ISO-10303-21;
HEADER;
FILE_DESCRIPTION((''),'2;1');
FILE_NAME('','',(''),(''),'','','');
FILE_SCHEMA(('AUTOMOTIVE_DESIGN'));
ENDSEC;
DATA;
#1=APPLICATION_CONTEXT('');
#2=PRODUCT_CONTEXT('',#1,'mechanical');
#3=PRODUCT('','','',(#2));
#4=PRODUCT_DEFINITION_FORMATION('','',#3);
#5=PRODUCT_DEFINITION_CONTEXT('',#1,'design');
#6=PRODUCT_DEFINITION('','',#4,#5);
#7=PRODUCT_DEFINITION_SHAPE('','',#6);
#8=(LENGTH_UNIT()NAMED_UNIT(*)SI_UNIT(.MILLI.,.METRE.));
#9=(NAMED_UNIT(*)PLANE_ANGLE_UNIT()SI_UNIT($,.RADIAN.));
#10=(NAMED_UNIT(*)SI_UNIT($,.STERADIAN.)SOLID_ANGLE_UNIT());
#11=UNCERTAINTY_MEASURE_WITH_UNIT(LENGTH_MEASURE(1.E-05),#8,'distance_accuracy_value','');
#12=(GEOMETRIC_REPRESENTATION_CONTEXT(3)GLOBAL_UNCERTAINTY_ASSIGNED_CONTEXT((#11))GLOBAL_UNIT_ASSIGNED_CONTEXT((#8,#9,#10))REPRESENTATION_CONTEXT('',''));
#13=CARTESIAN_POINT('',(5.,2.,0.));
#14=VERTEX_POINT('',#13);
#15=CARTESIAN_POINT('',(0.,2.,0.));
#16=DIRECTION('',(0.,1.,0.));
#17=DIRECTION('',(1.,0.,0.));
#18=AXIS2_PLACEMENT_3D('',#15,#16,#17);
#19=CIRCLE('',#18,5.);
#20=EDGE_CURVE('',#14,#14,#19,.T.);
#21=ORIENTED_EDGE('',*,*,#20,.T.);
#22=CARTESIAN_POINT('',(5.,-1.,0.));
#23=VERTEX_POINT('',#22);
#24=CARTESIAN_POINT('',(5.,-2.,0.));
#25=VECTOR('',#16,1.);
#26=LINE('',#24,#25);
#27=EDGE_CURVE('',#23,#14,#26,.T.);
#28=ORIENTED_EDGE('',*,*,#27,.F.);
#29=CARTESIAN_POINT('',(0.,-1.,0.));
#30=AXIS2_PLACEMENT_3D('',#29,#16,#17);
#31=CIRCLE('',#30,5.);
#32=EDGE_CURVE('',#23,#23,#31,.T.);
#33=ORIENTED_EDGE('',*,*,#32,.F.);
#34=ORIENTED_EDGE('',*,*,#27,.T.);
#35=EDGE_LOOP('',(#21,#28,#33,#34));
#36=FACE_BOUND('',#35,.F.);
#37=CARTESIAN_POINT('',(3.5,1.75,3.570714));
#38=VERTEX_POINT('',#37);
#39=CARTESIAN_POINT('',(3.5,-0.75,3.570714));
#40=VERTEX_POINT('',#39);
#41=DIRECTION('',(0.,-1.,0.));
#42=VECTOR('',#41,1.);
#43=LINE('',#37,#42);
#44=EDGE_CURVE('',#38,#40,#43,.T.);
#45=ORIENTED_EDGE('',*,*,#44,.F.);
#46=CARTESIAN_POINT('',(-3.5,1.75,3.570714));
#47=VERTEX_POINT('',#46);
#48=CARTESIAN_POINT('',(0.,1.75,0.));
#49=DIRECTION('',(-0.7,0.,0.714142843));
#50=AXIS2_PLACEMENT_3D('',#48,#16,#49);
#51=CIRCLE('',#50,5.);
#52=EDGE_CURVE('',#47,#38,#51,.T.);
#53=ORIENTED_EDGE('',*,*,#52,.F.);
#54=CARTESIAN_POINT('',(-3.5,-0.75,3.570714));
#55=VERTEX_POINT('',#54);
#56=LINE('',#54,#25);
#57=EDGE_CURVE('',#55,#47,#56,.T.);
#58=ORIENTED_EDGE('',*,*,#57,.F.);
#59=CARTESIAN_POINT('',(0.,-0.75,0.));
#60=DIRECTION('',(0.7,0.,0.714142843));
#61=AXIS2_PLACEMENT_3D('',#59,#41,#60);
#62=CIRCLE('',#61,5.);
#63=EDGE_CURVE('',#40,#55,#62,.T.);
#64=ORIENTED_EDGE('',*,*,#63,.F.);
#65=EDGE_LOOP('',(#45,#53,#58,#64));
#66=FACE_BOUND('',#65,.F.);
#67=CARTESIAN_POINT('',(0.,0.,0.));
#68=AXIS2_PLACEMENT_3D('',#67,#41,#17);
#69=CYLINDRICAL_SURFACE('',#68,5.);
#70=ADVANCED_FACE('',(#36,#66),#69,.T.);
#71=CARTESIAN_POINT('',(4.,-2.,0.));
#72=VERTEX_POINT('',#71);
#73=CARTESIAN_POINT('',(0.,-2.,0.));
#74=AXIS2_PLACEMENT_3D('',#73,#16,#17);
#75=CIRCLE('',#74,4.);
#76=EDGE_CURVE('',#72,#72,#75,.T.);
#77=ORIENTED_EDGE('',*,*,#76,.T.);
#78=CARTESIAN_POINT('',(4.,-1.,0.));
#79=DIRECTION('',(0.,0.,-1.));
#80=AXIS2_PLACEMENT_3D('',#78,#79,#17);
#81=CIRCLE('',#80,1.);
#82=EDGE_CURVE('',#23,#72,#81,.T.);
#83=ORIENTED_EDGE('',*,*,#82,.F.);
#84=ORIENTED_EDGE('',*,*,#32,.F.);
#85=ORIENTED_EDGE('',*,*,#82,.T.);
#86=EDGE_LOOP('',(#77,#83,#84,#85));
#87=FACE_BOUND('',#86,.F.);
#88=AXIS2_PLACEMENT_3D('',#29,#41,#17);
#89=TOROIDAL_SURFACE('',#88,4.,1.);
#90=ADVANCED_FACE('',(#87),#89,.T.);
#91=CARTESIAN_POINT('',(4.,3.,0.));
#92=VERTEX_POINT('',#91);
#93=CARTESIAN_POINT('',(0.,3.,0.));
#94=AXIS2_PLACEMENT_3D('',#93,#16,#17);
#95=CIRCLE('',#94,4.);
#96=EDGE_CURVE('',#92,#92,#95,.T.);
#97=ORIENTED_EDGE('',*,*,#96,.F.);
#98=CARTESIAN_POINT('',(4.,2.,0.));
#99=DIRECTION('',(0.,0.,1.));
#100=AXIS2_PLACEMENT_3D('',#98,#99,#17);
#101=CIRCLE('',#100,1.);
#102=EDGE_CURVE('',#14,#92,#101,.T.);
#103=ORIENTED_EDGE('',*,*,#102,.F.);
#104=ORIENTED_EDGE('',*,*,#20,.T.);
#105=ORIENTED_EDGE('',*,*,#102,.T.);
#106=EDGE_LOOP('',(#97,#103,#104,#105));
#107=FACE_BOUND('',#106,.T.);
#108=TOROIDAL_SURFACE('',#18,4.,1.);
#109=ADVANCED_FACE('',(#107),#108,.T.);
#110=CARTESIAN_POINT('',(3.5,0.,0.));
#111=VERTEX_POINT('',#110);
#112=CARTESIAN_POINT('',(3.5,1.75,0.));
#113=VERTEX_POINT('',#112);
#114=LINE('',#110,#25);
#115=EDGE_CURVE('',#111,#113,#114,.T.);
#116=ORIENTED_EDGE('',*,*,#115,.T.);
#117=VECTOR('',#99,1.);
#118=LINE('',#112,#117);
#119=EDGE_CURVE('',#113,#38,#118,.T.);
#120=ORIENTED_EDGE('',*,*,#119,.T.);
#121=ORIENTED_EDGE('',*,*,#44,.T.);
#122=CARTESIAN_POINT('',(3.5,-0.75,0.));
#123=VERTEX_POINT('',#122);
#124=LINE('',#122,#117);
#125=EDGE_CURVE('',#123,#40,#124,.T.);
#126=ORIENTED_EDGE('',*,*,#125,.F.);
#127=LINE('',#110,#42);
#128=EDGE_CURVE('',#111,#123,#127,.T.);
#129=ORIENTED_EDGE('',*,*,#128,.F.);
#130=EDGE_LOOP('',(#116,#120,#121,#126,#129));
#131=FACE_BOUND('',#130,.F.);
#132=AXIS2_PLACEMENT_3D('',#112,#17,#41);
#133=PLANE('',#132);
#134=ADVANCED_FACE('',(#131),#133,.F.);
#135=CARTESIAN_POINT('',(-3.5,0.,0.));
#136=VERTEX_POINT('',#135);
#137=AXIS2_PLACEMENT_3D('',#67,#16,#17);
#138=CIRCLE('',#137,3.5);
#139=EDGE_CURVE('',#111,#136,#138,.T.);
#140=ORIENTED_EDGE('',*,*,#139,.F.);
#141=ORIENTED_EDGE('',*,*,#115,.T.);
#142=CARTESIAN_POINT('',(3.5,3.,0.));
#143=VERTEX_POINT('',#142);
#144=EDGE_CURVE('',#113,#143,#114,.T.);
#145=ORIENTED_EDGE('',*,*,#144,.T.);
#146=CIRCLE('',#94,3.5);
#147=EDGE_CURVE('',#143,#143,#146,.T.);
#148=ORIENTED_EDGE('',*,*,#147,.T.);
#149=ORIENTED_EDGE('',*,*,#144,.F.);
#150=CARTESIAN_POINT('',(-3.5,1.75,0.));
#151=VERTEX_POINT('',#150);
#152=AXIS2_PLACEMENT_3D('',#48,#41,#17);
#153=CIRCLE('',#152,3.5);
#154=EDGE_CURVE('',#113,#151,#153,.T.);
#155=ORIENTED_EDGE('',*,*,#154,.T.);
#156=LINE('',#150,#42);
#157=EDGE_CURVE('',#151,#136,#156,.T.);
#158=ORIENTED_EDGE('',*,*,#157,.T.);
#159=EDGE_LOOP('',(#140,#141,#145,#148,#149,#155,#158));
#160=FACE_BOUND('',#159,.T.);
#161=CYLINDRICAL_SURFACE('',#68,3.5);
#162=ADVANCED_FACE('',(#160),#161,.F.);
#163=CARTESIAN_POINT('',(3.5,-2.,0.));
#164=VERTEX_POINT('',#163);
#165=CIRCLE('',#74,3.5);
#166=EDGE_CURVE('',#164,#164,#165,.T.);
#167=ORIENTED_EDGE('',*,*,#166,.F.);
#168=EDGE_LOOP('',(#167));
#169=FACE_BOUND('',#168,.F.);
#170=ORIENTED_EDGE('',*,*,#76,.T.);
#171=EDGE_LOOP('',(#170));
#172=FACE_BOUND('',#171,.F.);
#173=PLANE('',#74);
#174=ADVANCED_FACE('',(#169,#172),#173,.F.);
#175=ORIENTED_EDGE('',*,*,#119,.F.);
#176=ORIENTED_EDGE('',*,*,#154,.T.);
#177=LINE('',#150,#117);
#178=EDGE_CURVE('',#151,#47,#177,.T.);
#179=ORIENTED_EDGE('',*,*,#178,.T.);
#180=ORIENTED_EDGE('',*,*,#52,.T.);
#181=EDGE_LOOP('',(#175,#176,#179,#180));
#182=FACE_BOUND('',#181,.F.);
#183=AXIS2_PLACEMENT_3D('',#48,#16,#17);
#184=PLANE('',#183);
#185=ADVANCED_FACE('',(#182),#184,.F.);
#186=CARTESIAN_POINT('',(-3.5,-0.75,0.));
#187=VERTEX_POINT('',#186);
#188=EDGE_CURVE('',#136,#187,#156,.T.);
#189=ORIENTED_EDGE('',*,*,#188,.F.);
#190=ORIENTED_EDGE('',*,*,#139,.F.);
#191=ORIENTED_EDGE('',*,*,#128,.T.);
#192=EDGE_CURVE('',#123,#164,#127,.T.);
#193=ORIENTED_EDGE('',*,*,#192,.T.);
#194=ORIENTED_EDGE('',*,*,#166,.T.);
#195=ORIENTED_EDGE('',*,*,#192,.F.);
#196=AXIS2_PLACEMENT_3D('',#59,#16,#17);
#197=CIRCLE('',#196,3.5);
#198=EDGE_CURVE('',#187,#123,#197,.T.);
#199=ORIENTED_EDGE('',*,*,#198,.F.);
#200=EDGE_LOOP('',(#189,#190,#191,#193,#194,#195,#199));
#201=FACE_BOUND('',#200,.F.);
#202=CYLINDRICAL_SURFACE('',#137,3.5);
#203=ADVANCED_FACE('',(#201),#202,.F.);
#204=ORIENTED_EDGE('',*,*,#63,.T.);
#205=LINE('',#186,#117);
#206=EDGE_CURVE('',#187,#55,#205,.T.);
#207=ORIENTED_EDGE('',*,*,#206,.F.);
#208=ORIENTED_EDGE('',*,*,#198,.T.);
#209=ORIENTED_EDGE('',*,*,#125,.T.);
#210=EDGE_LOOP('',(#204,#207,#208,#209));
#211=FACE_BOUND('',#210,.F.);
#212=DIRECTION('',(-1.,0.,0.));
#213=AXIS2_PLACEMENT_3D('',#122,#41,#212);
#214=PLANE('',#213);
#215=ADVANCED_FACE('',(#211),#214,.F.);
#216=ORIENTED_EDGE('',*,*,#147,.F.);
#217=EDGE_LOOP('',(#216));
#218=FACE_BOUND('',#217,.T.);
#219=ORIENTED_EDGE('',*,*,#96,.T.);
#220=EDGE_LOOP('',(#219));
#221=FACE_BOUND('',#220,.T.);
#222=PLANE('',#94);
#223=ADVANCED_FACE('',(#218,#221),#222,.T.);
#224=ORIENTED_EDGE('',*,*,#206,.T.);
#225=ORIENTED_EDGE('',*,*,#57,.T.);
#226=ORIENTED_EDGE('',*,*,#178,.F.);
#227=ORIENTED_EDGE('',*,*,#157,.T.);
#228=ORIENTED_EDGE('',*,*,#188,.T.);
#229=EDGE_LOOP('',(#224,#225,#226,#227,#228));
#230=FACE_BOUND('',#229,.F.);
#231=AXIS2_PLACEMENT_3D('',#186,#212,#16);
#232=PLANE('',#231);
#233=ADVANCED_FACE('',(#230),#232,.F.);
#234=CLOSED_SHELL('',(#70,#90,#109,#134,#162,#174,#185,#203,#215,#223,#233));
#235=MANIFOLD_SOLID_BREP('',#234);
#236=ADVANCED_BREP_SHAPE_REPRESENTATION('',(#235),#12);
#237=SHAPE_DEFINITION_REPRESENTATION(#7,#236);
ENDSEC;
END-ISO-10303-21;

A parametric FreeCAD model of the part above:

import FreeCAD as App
import Part
import Sketcher


def edges_at(feature, points):
    """Names of the edges that pass closest to the given points."""
    edges = feature.Shape.Edges
    near = lambda p: min(range(len(edges)), key=lambda i: edges[i].distToShape(Part.Vertex(*p))[0])
    return sorted({f"Edge{near(p) + 1}" for p in points})


def add_polygon(sketch, points):
    """Adds a closed chain of lines whose ends are joined by coincident constraints."""
    first, n = sketch.GeometryCount, len(points)
    for a, b in zip(points, points[1:] + points[:1]):
        sketch.addGeometry(Part.LineSegment(App.Vector(*a, 0), App.Vector(*b, 0)), False)
    for i in range(n):
        sketch.addConstraint(Sketcher.Constraint("Coincident", first + i, 2, first + (i + 1) % n, 1))

doc = App.newDocument("Part")
body = doc.addObject("PartDesign::Body", "Body")

# Sketch on XZ plane
sketch1 = body.newObject("Sketcher::SketchObject", "Sketch")
sketch1.AttachmentSupport = (doc.getObject("XZ_Plane"), [""])
sketch1.MapMode = "FlatFace"
sketch1.addGeometry([
    Part.Circle(App.Vector(0, 0, 0), App.Vector(0, 0, 1), 5),
    Part.Circle(App.Vector(0, 0, 0), App.Vector(0, 0, 1), 3.5),
], False)
sketch1.addConstraint([
    Sketcher.Constraint("Coincident", 0, 3, -1, 1),
    Sketcher.Constraint("Coincident", 1, 3, -1, 1),
    Sketcher.Constraint("Diameter", 0, 10.0),
    Sketcher.Constraint("Diameter", 1, 7.0),
])
pad1 = body.newObject("PartDesign::Pad", "Pad")
pad1.Profile = sketch1
pad1.Type = "TwoLengths"
pad1.Length = 3
pad1.Length2 = 2
pad1.Reversed = True

# Sketch on XY plane
sketch2 = body.newObject("Sketcher::SketchObject", "Sketch001")
sketch2.AttachmentSupport = (doc.getObject("XY_Plane"), [""])
sketch2.MapMode = "FlatFace"
add_polygon(sketch2, [(-3.5, -0.75), (3.5, -0.75), (3.5, 1.75), (-3.5, 1.75)])  # lines 0-3
sketch2.addConstraint([
    Sketcher.Constraint("Horizontal", 0),
    Sketcher.Constraint("Vertical", 1),
    Sketcher.Constraint("Horizontal", 2),
    Sketcher.Constraint("Vertical", 3),
    Sketcher.Constraint("DistanceX", 0, 1, 0, 2, 7.0),
    Sketcher.Constraint("DistanceY", 1, 1, 1, 2, 2.5),
    Sketcher.Constraint("DistanceX", -1, 1, 0, 2, 3.5),
    Sketcher.Constraint("DistanceY", -1, 1, 1, 2, 1.75),
])
pocket1 = body.newObject("PartDesign::Pocket", "Pocket")
pocket1.Profile = sketch2
pocket1.Length = 5
pocket1.Reversed = True
doc.recompute()

fillet = body.newObject("PartDesign::Fillet", "Fillet")
fillet.Base = (pocket1, edges_at(pocket1, [(-4.662, 3, 1.808)]))
fillet.Radius = 1
doc.recompute()

fillet2 = body.newObject("PartDesign::Fillet", "Fillet001")
fillet2.Base = (fillet, edges_at(fillet, [(-4.662, -2, -1.808)]))
fillet2.Radius = 1

doc.recompute()
